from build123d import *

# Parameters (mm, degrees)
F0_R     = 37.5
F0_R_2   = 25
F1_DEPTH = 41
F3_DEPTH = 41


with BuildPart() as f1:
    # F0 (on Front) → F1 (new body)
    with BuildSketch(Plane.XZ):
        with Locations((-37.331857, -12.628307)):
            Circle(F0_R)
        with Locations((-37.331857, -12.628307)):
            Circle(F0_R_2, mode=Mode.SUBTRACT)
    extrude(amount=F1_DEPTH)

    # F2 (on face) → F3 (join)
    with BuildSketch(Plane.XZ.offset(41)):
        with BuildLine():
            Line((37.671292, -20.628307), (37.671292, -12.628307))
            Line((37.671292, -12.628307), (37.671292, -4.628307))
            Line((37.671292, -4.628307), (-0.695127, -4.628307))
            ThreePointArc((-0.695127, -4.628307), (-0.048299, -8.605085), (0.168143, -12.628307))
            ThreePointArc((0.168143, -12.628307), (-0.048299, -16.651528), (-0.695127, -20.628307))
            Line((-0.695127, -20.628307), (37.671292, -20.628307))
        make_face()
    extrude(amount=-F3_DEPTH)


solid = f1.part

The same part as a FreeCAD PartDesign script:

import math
import FreeCAD as App
import Part
import Sketcher
Q = App.Units.Quantity

doc = App.newDocument("Part")
body = doc.addObject("PartDesign::Body", "Body")

sketch1 = doc.addObject("Sketcher::SketchObject", "Sketch")
body.addObject(sketch1)
sketch1.AttachmentSupport = (doc.XZ_Plane, [""])
sketch1.MapMode = "FlatFace"
sketch1.addGeometry([
    Part.Circle(App.Vector(-37, -13, 0), App.Vector(0, 0, 1), 38),
    Part.Circle(App.Vector(-37, -13, 0), App.Vector(0, 0, 1), 25),
], False)
sketch1.addConstraint([
    Sketcher.Constraint("Coincident", 1, 3, 0, 3),
    Sketcher.Constraint("Diameter", 0, Q("75 mm")),
    Sketcher.Constraint("Diameter", 1, Q("50 mm")),
    Sketcher.Constraint("DistanceX", 0, 3, -1, 1, Q("37.331857 mm")),
    Sketcher.Constraint("DistanceY", 0, 3, -1, 1, Q("12.628307 mm")),
])
pad1 = doc.addObject("PartDesign::Pad", "Pad")
body.addObject(pad1)
pad1.Profile = sketch1
pad1.Length = 41

sketch2 = doc.addObject("Sketcher::SketchObject", "Sketch001")
body.addObject(sketch2)
sketch2.AttachmentSupport = (doc.XZ_Plane, [""])
sketch2.MapMode = "FlatFace"
sketch2.AttachmentOffset = App.Placement(App.Vector(0, 0, 41), App.Rotation())
sketch2.addGeometry([
    Part.LineSegment(App.Vector(38, -21, 0), App.Vector(38, -5, 0)),
    Part.LineSegment(App.Vector(38, -5, 0), App.Vector(-1, -5, 0)),
    Part.ArcOfCircle(Part.Circle(App.Vector(-37, -13, 0), App.Vector(0, 0, 1), 37), math.radians(0), math.radians(12.32)),
    Part.ArcOfCircle(Part.Circle(App.Vector(-37, -13, 0), App.Vector(0, 0, 1), 37), math.radians(-12.32), math.radians(0)),
    Part.LineSegment(App.Vector(-1, -21, 0), App.Vector(38, -21, 0)),
], False)
sketch2.addConstraint([
    Sketcher.Constraint("Coincident", 0, 2, 1, 1),
    Sketcher.Constraint("Coincident", 1, 2, 2, 2),
    Sketcher.Constraint("Tangent", 2, 1, 3, 2),
    Sketcher.Constraint("Coincident", 3, 1, 4, 1),
    Sketcher.Constraint("Coincident", 4, 2, 0, 1),
    Sketcher.Constraint("Vertical", 0),
    Sketcher.Constraint("Horizontal", 1),
    Sketcher.Constraint("Horizontal", 4),
    Sketcher.Constraint("Vertical", 1, 2, 3, 1),
    Sketcher.Constraint("DistanceY", 0, 1, 0, 2, Q("16 mm")),
    Sketcher.Constraint("DistanceY", 2, 1, 1, 2, Q("8 mm")),
    Sketcher.Constraint("Radius", 2, Q("37.499954 mm")),
    Sketcher.Constraint("Radius", 3, Q("37.499973 mm")),
    Sketcher.Constraint("DistanceX", 1, 2, 1, 1, Q("38.366419 mm")),
    Sketcher.Constraint("DistanceX", 2, 3, -1, 1, Q("37.331811 mm")),
    Sketcher.Constraint("DistanceY", 3, 3, -1, 1, Q("12.628309 mm")),
])
pad2 = doc.addObject("PartDesign::Pad", "Pad001")
body.addObject(pad2)
pad2.Profile = sketch2
pad2.Length = 41
pad2.Reversed = True

doc.recompute()
